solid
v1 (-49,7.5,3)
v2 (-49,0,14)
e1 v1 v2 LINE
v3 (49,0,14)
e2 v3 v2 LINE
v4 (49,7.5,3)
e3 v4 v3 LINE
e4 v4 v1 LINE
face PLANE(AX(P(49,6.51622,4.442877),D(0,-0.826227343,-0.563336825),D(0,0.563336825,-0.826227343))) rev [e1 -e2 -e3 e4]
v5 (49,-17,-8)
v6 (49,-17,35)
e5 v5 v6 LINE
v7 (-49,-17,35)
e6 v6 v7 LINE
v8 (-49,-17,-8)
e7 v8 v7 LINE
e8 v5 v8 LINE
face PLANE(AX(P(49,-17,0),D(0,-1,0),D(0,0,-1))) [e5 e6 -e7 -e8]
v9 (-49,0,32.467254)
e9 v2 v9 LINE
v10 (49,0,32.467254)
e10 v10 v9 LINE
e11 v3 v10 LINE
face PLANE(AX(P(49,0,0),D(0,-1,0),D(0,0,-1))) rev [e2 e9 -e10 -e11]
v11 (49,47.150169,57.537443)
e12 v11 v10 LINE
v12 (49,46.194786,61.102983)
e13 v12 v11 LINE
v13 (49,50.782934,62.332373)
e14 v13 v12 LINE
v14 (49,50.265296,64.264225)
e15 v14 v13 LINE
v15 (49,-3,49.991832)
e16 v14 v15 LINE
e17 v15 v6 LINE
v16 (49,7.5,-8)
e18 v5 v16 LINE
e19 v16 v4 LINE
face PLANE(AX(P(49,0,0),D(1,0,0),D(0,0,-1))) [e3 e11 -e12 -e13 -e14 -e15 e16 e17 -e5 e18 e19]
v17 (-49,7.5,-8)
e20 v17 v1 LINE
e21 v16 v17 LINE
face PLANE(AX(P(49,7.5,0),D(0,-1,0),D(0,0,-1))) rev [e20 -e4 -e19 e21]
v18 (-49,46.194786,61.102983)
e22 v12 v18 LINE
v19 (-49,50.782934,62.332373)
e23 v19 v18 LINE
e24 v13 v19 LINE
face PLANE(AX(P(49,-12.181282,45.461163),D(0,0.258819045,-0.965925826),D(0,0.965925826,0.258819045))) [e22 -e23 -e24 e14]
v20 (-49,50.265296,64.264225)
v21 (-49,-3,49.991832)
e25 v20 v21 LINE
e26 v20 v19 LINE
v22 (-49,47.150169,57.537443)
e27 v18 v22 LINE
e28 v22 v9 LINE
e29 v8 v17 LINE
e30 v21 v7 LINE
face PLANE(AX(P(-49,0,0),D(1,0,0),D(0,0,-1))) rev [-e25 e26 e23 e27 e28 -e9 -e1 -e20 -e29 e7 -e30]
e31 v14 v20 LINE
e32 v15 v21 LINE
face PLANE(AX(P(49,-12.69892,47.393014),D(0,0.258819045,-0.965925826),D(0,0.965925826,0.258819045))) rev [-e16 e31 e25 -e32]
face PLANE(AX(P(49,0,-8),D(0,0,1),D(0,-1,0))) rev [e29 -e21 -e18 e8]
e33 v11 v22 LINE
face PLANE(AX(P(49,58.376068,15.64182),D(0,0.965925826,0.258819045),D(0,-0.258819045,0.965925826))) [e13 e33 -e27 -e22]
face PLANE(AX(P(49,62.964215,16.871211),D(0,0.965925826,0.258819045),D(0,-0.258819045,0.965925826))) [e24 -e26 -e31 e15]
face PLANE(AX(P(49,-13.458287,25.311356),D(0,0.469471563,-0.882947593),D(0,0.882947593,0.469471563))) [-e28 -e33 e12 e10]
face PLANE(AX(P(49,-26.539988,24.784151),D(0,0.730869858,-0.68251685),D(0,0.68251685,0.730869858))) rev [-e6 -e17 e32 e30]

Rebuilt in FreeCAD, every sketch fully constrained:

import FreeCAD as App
import Part
import Sketcher
Q = App.Units.Quantity


def add_polygon(sketch, points):
    """Adds a closed chain of lines whose ends are joined by coincident constraints."""
    first, n = sketch.GeometryCount, len(points)
    for a, b in zip(points, points[1:] + points[:1]):
        sketch.addGeometry(Part.LineSegment(App.Vector(*a, 0), App.Vector(*b, 0)), False)
    for i in range(n):
        sketch.addConstraint(Sketcher.Constraint("Coincident", first + i, 2, first + (i + 1) % n, 1))

doc = App.newDocument("Part")
body = doc.addObject("PartDesign::Body", "Body")

sketch1 = body.newObject("Sketcher::SketchObject", "Sketch")
sketch1.AttachmentSupport = (doc.getObject("YZ_Plane"), [""])
sketch1.MapMode = "FlatFace"
add_polygon(sketch1, [(46.2, 61.1), (50.8, 62.3), (50.3, 64.3), (-3, 50), (-17, 35), (-17, -8), (7.5, -8), (7.5, 3), (0, 14), (0, 32.5), (47.2, 57.5)])
sketch1.addConstraint(Sketcher.Constraint("Vertical", 4))
sketch1.addConstraint(Sketcher.Constraint("Horizontal", 5))
sketch1.addConstraint(Sketcher.Constraint("Vertical", 6))
sketch1.addConstraint(Sketcher.Constraint("Vertical", 8))
sketch1.addConstraint(Sketcher.Constraint("PointOnObject", 7, 2, -2))
sketch1.addConstraint(Sketcher.Constraint("Perpendicular", 0, 1))
sketch1.addConstraint(Sketcher.Constraint("Perpendicular", 1, 2))
sketch1.addConstraint(Sketcher.Constraint("Perpendicular", 2, 10))
sketch1.addConstraint(Sketcher.Constraint("DistanceY", 4, 2, 4, 1, 43.0))
sketch1.addConstraint(Sketcher.Constraint("DistanceY", 6, 1, 6, 2, 11.0))
sketch1.addConstraint(Sketcher.Constraint("Angle", 0, Q("15 deg")))
sketch1.addConstraint(Sketcher.Constraint("Angle", 9, Q("28 deg")))
sketch1.addConstraint(Sketcher.Constraint("Distance", 1, 2.0))
sketch1.addConstraint(Sketcher.Constraint("DistanceX", 5, 1, 5, 2, 24.5))
sketch1.addConstraint(Sketcher.Constraint("DistanceX", 2, 2, -1, 1, 3.0))
sketch1.addConstraint(Sketcher.Constraint("DistanceX", 3, 2, -1, 1, 17.0))
sketch1.addConstraint(Sketcher.Constraint("DistanceY", -1, 1, 3, 2, 35.0))
sketch1.addConstraint(Sketcher.Constraint("DistanceY", -1, 1, 7, 2, 14.0))
sketch1.addConstraint(Sketcher.Constraint("Distance", 0, 4.75))
sketch1.addConstraint(Sketcher.Constraint("Distance", 2, 55.144292))
sketch1.addConstraint(Sketcher.Constraint("Distance", 9, 53.40087))
sketch1.addConstraint(Sketcher.Constraint("DistanceY", 8, 1, 8, 2, 18.467254))
pad1 = body.newObject("PartDesign::Pad", "Pad")
pad1.Profile = sketch1
pad1.Length = 98
pad1.Midplane = True

doc.recompute()
